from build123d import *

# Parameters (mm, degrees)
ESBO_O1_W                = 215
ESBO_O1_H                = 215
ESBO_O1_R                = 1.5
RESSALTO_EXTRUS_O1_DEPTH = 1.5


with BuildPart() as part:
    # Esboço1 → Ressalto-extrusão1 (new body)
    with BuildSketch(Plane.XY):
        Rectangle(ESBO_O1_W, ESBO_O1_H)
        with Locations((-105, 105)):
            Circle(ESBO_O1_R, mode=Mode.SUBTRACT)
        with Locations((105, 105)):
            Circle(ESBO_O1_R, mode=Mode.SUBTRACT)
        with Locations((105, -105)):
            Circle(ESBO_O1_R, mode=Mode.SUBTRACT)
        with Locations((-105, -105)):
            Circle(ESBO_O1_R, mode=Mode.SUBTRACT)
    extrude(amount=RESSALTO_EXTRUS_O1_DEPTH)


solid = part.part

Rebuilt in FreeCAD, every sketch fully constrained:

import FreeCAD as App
import Part
import Sketcher
from FreeCAD import Vector
Q = App.Units.Quantity


def add_polygon(sketch, points):
    """Adds a closed chain of lines whose ends are joined by coincident constraints."""
    first, n = sketch.GeometryCount, len(points)
    for a, b in zip(points, points[1:] + points[:1]):
        sketch.addGeometry(Part.LineSegment(App.Vector(*a, 0), App.Vector(*b, 0)), False)
    for i in range(n):
        sketch.addConstraint(Sketcher.Constraint("Coincident", first + i, 2, first + (i + 1) % n, 1))

doc = App.newDocument("Part")
params = doc.addObject("Spreadsheet::Sheet", "Params")
for row, (alias, value) in enumerate([
    ("sketch1_diameter", "3 mm"),
    ("sketch1_width", "215 mm"),
    ("pad1_length", "1.5 mm"),
], start=1):
    params.set(f"A{row}", alias)
    params.set(f"B{row}", "=" + value)
    params.setAlias(f"B{row}", alias)

body = doc.addObject("PartDesign::Body", "Body")

# Sketch on XY plane
sketch1 = doc.addObject("Sketcher::SketchObject", "Sketch")
body.addObject(sketch1)
sketch1.AttachmentSupport = (doc.XY_Plane, [""])
sketch1.MapMode = "FlatFace"
add_polygon(sketch1, [(-107.5, 107.5), (-107.5, -107.5), (107.5, -107.5), (107.5, 107.5)])  # lines 0-3
sketch1.addGeometry(Part.Circle(Vector(-105, -105, 0), Vector(0, 0, 1), 1.5), False)  # 4
sketch1.addGeometry(Part.Circle(Vector(105, -105, 0), Vector(0, 0, 1), 1.5), False)  # 5
sketch1.addGeometry(Part.Circle(Vector(-105, 105, 0), Vector(0, 0, 1), 1.5), False)  # 6
sketch1.addGeometry(Part.Circle(Vector(105, 105, 0), Vector(0, 0, 1), 1.5), False)  # 7
sketch1.addConstraint([
    Sketcher.Constraint("Vertical", 0),
    Sketcher.Constraint("Horizontal", 1),
    Sketcher.Constraint("Vertical", 2),
    Sketcher.Constraint("Horizontal", 3),
    Sketcher.Constraint("Equal", 4, 5),
    Sketcher.Constraint("Equal", 5, 6),
    Sketcher.Constraint("Equal", 6, 7),
    Sketcher.Constraint("Symmetric", 5, 3, 6, 3, -1, 1),
    Sketcher.Constraint("Symmetric", 4, 3, 7, 3, -1, 1),
    Sketcher.Constraint("Symmetric", 0, 2, 2, 2, -1, 1),
    Sketcher.Constraint("Symmetric", 4, 3, 5, 3, -2),
    Sketcher.Constraint("Equal", 3, 0),
    Sketcher.Constraint("Diameter", 4, Q("3 mm")),
    Sketcher.Constraint("DistanceX", 1, 1, 1, 2, Q("215 mm")),
    Sketcher.Constraint("DistanceX", 4, 3, -1, 1, Q("105 mm")),
    Sketcher.Constraint("DistanceY", 4, 3, -1, 1, Q("105 mm")),
])
sketch1.setExpression("Constraints[16]", "Params.sketch1_diameter")
sketch1.setExpression("Constraints[17]", "Params.sketch1_width")
pad1 = doc.addObject("PartDesign::Pad", "Pad")
body.addObject(pad1)
pad1.Profile = sketch1
pad1.setExpression("Length", "Params.pad1_length")

doc.recompute()
